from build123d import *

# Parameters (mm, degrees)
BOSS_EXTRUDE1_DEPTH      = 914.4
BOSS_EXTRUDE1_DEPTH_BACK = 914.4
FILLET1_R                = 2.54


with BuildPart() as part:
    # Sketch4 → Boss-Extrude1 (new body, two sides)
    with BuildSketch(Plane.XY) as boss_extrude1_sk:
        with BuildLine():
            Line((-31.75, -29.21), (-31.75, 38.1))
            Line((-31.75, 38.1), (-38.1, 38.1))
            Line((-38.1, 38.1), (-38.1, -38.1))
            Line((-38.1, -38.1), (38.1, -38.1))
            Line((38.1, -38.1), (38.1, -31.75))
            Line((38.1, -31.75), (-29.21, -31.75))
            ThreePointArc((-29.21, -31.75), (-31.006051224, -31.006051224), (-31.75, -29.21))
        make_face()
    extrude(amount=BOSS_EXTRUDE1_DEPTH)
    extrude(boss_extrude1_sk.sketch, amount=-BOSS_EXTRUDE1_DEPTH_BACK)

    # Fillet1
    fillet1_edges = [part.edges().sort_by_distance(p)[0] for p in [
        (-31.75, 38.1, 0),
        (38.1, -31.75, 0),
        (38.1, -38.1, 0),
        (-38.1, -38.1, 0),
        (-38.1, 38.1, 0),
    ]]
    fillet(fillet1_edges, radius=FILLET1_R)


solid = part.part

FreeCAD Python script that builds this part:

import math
import FreeCAD as App
import Part
import Sketcher
Q = App.Units.Quantity


def edges_at(feature, points):
    """Names of the edges that pass closest to the given points."""
    edges = feature.Shape.Edges
    near = lambda p: min(range(len(edges)), key=lambda i: edges[i].distToShape(Part.Vertex(*p))[0])
    return sorted({f"Edge{near(p) + 1}" for p in points})

doc = App.newDocument("Part")
body = doc.addObject("PartDesign::Body", "Body")

sketch1 = body.newObject("Sketcher::SketchObject", "Sketch")
sketch1.AttachmentSupport = (doc.getObject("XY_Plane"), [""])
sketch1.MapMode = "FlatFace"
sketch1.addGeometry([
    Part.LineSegment(App.Vector(-31.8, -29.2, 0), App.Vector(-31.8, 38.1, 0)),
    Part.LineSegment(App.Vector(-31.8, 38.1, 0), App.Vector(-38.1, 38.1, 0)),
    Part.LineSegment(App.Vector(-38.1, 38.1, 0), App.Vector(-38.1, -38.1, 0)),
    Part.LineSegment(App.Vector(-38.1, -38.1, 0), App.Vector(38.1, -38.1, 0)),
    Part.LineSegment(App.Vector(38.1, -38.1, 0), App.Vector(38.1, -31.8, 0)),
    Part.LineSegment(App.Vector(38.1, -31.8, 0), App.Vector(-29.2, -31.8, 0)),
    Part.ArcOfCircle(Part.Circle(App.Vector(-29.2, -29.2, 0), App.Vector(0, 0, 1), 2.5), math.radians(-180), math.radians(-90)),
], False)
sketch1.addConstraint([
    Sketcher.Constraint("Coincident", 0, 2, 1, 1),
    Sketcher.Constraint("Coincident", 1, 2, 2, 1),
    Sketcher.Constraint("Coincident", 2, 2, 3, 1),
    Sketcher.Constraint("Coincident", 3, 2, 4, 1),
    Sketcher.Constraint("Coincident", 4, 2, 5, 1),
    Sketcher.Constraint("Tangent", 5, 2, 6, 2),
    Sketcher.Constraint("Tangent", 6, 1, 0, 1),
    Sketcher.Constraint("Vertical", 0),
    Sketcher.Constraint("Horizontal", 1),
    Sketcher.Constraint("Vertical", 2),
    Sketcher.Constraint("Horizontal", 3),
    Sketcher.Constraint("Vertical", 4),
    Sketcher.Constraint("Horizontal", 5),
    Sketcher.Constraint("Symmetric", 1, 2, 3, 2, -1, 1),
    Sketcher.Constraint("Equal", 5, 0),
    Sketcher.Constraint("Equal", 3, 2),
    Sketcher.Constraint("Radius", 6, Q("0.1 in")),
    Sketcher.Constraint("DistanceX", 3, 1, 3, 2, Q("3 in")),
    Sketcher.Constraint("DistanceX", 1, 2, 1, 1, Q("0.25 in")),
])
pad1 = body.newObject("PartDesign::Pad", "Pad")
pad1.Profile = sketch1
pad1.Type = "TwoLengths"
pad1.Length = Q("36 in")
pad1.Length2 = Q("36 in")
doc.recompute()

fillet = body.newObject("PartDesign::Fillet", "Fillet")
fillet.Base = (pad1, edges_at(pad1, [
    (-31.75, 38.1, 0),
    (38.1, -31.75, 0),
    (38.1, -38.1, 0),
    (-38.1, -38.1, 0),
    (-38.1, 38.1, 0),
]))
fillet.Radius = Q("0.1 in")

doc.recompute()
